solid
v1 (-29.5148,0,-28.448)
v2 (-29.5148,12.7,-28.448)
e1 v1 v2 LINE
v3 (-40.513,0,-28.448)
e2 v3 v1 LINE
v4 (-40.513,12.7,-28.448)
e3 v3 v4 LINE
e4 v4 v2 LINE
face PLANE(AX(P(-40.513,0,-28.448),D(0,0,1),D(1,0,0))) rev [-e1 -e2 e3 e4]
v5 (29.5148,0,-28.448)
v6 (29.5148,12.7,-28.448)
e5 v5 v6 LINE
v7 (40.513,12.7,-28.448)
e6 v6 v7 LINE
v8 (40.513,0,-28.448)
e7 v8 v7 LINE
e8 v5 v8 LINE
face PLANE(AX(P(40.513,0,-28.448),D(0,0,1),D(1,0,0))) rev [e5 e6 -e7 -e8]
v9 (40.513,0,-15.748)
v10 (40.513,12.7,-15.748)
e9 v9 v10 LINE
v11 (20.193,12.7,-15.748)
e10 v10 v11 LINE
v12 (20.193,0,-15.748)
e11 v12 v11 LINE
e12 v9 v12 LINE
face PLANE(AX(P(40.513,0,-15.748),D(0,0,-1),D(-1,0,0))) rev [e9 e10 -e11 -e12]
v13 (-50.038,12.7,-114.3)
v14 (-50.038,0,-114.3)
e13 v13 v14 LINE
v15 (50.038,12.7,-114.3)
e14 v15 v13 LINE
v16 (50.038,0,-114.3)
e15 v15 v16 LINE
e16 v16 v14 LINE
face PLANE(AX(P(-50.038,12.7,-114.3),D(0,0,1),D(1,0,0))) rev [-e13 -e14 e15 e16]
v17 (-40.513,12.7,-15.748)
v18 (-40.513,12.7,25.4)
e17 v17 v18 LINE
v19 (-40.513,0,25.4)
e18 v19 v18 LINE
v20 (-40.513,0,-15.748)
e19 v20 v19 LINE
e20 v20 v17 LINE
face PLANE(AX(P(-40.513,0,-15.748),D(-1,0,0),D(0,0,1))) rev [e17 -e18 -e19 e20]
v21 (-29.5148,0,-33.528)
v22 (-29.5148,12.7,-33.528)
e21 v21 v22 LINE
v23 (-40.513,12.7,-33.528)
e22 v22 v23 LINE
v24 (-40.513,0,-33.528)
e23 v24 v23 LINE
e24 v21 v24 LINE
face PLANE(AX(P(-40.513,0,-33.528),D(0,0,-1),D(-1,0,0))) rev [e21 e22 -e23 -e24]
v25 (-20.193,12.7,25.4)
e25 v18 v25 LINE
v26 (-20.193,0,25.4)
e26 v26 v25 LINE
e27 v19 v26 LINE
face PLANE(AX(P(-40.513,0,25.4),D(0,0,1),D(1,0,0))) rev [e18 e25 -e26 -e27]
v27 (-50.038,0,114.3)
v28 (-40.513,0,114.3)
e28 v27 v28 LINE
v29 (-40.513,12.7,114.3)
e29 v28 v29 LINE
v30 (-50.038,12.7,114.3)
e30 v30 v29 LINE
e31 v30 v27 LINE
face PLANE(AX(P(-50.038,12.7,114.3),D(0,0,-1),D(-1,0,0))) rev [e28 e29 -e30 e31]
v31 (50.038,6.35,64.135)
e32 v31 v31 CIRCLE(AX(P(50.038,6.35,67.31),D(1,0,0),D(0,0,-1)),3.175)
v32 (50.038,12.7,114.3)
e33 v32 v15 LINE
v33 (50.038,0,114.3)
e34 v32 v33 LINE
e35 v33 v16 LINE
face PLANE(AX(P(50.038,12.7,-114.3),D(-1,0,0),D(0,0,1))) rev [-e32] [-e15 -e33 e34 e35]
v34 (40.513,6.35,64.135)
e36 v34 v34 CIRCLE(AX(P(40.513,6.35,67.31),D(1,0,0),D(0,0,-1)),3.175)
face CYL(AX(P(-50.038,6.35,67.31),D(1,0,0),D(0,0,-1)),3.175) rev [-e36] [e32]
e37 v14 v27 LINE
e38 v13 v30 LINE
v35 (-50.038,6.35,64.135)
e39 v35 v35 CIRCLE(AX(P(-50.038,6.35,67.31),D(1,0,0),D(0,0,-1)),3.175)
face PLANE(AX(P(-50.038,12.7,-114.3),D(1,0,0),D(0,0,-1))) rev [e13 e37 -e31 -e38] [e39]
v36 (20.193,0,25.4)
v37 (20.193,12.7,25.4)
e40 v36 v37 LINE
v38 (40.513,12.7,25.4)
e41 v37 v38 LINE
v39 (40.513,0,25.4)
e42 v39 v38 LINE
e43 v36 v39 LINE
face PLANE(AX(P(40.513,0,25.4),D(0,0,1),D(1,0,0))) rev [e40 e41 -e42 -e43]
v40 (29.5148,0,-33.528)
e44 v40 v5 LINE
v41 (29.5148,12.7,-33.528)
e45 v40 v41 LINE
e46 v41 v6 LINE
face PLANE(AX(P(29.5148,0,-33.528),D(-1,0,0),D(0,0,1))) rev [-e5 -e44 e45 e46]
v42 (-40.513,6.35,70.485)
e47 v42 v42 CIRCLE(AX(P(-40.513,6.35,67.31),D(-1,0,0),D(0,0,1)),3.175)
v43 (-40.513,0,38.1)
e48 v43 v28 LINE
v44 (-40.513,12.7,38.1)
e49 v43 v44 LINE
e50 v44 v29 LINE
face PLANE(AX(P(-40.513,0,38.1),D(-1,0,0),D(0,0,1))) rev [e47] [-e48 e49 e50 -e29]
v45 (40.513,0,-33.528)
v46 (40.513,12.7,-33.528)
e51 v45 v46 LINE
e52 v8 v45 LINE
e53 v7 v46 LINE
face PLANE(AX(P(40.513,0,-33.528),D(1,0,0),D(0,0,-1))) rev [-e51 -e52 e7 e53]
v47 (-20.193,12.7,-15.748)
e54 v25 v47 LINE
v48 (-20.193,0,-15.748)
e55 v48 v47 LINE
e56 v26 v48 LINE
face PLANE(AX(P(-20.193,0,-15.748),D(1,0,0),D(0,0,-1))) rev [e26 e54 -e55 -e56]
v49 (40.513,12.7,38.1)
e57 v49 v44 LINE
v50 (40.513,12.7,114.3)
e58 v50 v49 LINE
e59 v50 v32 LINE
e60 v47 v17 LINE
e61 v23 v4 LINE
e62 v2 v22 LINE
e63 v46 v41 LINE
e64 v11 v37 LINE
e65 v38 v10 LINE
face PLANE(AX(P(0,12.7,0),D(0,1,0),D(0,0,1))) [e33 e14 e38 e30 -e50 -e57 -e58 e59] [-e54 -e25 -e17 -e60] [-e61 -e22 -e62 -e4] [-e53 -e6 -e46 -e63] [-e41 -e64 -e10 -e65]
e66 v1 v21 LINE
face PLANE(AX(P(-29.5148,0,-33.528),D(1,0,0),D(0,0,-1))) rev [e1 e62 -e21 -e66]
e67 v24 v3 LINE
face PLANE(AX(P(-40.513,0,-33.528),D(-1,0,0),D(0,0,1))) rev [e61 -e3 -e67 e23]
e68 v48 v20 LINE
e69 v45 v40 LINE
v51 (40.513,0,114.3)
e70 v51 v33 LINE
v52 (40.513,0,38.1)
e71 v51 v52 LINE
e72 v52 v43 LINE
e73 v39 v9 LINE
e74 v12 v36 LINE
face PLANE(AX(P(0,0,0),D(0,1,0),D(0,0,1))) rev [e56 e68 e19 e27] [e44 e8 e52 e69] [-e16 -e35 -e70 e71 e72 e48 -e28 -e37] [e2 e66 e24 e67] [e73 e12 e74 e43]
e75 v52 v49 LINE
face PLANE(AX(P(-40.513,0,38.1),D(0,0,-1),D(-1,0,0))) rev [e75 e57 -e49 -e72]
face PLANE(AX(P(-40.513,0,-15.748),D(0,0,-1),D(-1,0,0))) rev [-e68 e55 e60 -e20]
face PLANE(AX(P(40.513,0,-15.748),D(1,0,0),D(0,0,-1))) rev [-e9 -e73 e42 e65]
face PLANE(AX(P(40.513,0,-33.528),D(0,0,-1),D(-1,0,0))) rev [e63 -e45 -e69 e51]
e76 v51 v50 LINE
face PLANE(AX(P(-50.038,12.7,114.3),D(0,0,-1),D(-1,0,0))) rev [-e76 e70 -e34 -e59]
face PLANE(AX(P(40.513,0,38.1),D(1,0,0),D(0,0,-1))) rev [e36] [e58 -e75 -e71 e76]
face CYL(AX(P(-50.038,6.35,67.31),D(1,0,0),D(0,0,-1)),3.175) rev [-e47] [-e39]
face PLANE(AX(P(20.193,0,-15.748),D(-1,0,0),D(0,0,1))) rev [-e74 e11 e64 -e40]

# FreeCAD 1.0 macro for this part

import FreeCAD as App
import Part
import Sketcher

V = App.Vector
Q = App.Units.Quantity


def add_polygon(sketch, points):
    """Adds a closed chain of lines whose ends are joined by coincident constraints."""
    first, n = sketch.GeometryCount, len(points)
    for a, b in zip(points, points[1:] + points[:1]):
        sketch.addGeometry(Part.LineSegment(App.Vector(*a, 0), App.Vector(*b, 0)), False)
    for i in range(n):
        sketch.addConstraint(Sketcher.Constraint("Coincident", first + i, 2, first + (i + 1) % n, 1))

doc = App.newDocument("Part")
body = doc.addObject("PartDesign::Body", "Body")

# Sketch on XZ plane
sketch1 = doc.addObject("Sketcher::SketchObject", "Sketch")
body.addObject(sketch1)
sketch1.AttachmentSupport = (doc.XZ_Plane, [""])
sketch1.MapMode = "FlatFace"
add_polygon(sketch1, [(-50, -114), (-50, 114), (50, 114), (50, -114)])  # lines 0-3
sketch1.addConstraint([
    Sketcher.Constraint("Vertical", 0),
    Sketcher.Constraint("Horizontal", 1),
    Sketcher.Constraint("Vertical", 2),
    Sketcher.Constraint("Horizontal", 3),
    Sketcher.Constraint("Symmetric", 0, 2, 2, 2, -1, 1),
    Sketcher.Constraint("DistanceY", 0, 1, 0, 2, Q("9 in")),
    Sketcher.Constraint("DistanceX", 1, 1, 1, 2, Q("3.94 in")),
])
pad1 = doc.addObject("PartDesign::Pad", "Pad")
body.addObject(pad1)
pad1.Profile = sketch1
pad1.Length = Q("0.5 in")
pad1.Reversed = True

# Sketch on XZ plane
sketch2 = doc.addObject("Sketcher::SketchObject", "Sketch001")
body.addObject(sketch2)
sketch2.AttachmentSupport = (doc.XZ_Plane, [""])
sketch2.MapMode = "FlatFace"
sketch2.AttachmentOffset = App.Placement(V(0, 0, -0.5 * 25.4), App.Rotation())
add_polygon(sketch2, [(-41, 38), (-41, 114), (41, 114), (41, 38)])  # lines 0-3
sketch2.addConstraint([
    Sketcher.Constraint("Vertical", 0),
    Sketcher.Constraint("Horizontal", 1),
    Sketcher.Constraint("Vertical", 2),
    Sketcher.Constraint("Horizontal", 3),
    Sketcher.Constraint("DistanceY", 0, 1, 0, 2, Q("3 in")),
    Sketcher.Constraint("DistanceX", 1, 1, 1, 2, Q("3.19 in")),
    Sketcher.Constraint("DistanceY", -1, 1, 0, 2, Q("4.5 in")),
    Sketcher.Constraint("DistanceX", 0, 2, -1, 1, Q("1.595 in")),
])
pocket1 = doc.addObject("PartDesign::Pocket", "Pocket")
body.addObject(pocket1)
pocket1.Profile = sketch2
pocket1.Type = "ThroughAll"
pocket1.Reversed = True

# Sketch on XZ plane
sketch3 = doc.addObject("Sketcher::SketchObject", "Sketch002")
body.addObject(sketch3)
sketch3.AttachmentSupport = (doc.XZ_Plane, [""])
sketch3.MapMode = "FlatFace"
sketch3.AttachmentOffset = App.Placement(V(0, 0, -0.5 * 25.4), App.Rotation())
add_polygon(sketch3, [(-41, -16), (-41, 25), (-20, 25), (-20, -16)])  # lines 0-3
add_polygon(sketch3, [(-41, -34), (-41, -28), (-30, -28), (-30, -34)])  # lines 4-7
add_polygon(sketch3, [(20, -16), (20, 25), (41, 25), (41, -16)])  # lines 8-11
add_polygon(sketch3, [(30, -34), (30, -28), (41, -28), (41, -34)])  # lines 12-15
sketch3.addConstraint([
    Sketcher.Constraint("Vertical", 0),
    Sketcher.Constraint("Horizontal", 1),
    Sketcher.Constraint("Vertical", 2),
    Sketcher.Constraint("Horizontal", 3),
    Sketcher.Constraint("Vertical", 4),
    Sketcher.Constraint("Horizontal", 5),
    Sketcher.Constraint("Vertical", 6),
    Sketcher.Constraint("Horizontal", 7),
    Sketcher.Constraint("Vertical", 8),
    Sketcher.Constraint("Horizontal", 9),
    Sketcher.Constraint("Vertical", 10),
    Sketcher.Constraint("Horizontal", 11),
    Sketcher.Constraint("Vertical", 12),
    Sketcher.Constraint("Horizontal", 13),
    Sketcher.Constraint("Vertical", 14),
    Sketcher.Constraint("Horizontal", 15),
    Sketcher.Constraint("Symmetric", 1, 2, 8, 2, -2),
    Sketcher.Constraint("Symmetric", 3, 2, 10, 2, -2),
    Sketcher.Constraint("Symmetric", 5, 2, 12, 2, -2),
    Sketcher.Constraint("Symmetric", 7, 2, 14, 2, -2),
    Sketcher.Constraint("Vertical", 3, 2, 4, 2),
    Sketcher.Constraint("DistanceX", 1, 1, 1, 2, Q("0.8 in")),
    Sketcher.Constraint("DistanceY", 4, 1, 4, 2, Q("0.2 in")),
    Sketcher.Constraint("DistanceY", -1, 1, 0, 2, Q("1 in")),
    Sketcher.Constraint("DistanceY", 0, 1, 0, 2, Q("1.62 in")),
    Sketcher.Constraint("DistanceY", 4, 2, 3, 2, Q("0.5 in")),
    Sketcher.Constraint("DistanceX", 5, 1, 5, 2, Q("0.433 in")),
    Sketcher.Constraint("DistanceX", 1, 2, 8, 2, Q("1.59 in")),
])
pocket2 = doc.addObject("PartDesign::Pocket", "Pocket001")
body.addObject(pocket2)
pocket2.Profile = sketch3
pocket2.Type = "ThroughAll"
pocket2.Reversed = True

# Sketch on YZ plane
sketch4 = doc.addObject("Sketcher::SketchObject", "Sketch003")
body.addObject(sketch4)
sketch4.AttachmentSupport = (doc.YZ_Plane, [""])
sketch4.MapMode = "FlatFace"
sketch4.AttachmentOffset = App.Placement(V(0, 0, -1.595 * 25.4), App.Rotation())
sketch4.addGeometry(Part.Circle(V(6.3, 67.3, 0), V(0, 0, 1), 3.2), False)
sketch4.addConstraint([
    Sketcher.Constraint("Diameter", 0, Q("0.25 in")),
    Sketcher.Constraint("DistanceX", -1, 1, 0, 3, Q("0.25 in")),
    Sketcher.Constraint("DistanceY", -1, 1, 0, 3, Q("2.65 in")),
])
pocket3 = doc.addObject("PartDesign::Pocket", "Pocket002")
body.addObject(pocket3)
pocket3.Profile = sketch4
pocket3.Type = "ThroughAll"
pocket3.Midplane = True

doc.recompute()
